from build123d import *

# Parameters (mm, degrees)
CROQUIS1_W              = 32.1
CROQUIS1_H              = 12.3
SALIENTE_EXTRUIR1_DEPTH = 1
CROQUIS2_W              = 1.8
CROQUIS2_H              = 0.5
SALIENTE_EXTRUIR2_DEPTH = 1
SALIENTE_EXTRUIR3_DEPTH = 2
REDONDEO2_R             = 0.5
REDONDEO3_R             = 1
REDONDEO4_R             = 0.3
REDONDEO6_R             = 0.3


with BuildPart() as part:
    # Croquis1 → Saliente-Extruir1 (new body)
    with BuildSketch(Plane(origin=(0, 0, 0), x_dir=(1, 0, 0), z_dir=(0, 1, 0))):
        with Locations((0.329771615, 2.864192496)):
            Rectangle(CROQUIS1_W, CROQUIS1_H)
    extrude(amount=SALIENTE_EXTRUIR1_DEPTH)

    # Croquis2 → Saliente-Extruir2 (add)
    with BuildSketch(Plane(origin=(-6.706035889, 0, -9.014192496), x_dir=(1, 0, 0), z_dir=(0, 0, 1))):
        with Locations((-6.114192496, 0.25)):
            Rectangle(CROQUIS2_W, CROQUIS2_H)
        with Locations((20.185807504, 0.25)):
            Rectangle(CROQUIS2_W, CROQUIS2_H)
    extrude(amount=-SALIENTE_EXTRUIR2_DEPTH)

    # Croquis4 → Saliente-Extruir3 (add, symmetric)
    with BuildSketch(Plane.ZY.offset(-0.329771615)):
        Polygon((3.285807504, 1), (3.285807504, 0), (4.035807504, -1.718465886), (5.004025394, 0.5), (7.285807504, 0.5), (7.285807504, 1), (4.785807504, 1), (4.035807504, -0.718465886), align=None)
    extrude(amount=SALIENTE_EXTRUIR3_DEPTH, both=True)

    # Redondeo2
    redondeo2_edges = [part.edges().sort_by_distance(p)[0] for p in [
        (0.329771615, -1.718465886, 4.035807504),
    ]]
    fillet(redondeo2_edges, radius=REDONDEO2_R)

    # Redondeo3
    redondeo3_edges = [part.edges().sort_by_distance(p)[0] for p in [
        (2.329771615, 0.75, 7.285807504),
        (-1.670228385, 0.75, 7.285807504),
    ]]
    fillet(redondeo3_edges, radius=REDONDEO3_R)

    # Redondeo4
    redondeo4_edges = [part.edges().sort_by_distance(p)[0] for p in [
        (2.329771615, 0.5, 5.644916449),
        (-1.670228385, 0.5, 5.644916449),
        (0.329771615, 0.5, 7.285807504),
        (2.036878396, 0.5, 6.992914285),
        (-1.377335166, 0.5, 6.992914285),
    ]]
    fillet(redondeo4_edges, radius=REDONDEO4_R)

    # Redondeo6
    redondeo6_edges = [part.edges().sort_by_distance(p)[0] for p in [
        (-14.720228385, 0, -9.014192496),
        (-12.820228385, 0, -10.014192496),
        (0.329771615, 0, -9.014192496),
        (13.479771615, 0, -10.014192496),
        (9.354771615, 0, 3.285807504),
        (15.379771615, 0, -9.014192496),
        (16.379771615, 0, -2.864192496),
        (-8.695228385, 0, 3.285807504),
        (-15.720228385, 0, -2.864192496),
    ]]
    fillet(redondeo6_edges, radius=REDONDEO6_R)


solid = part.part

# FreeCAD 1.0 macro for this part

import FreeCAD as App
import Part
import Sketcher

V = App.Vector


def edges_at(feature, points):
    """Names of the edges that pass closest to the given points."""
    edges = feature.Shape.Edges
    near = lambda p: min(range(len(edges)), key=lambda i: edges[i].distToShape(Part.Vertex(*p))[0])
    return sorted({f"Edge{near(p) + 1}" for p in points})


def add_polygon(sketch, points):
    """Adds a closed chain of lines whose ends are joined by coincident constraints."""
    first, n = sketch.GeometryCount, len(points)
    for a, b in zip(points, points[1:] + points[:1]):
        sketch.addGeometry(Part.LineSegment(App.Vector(*a, 0), App.Vector(*b, 0)), False)
    for i in range(n):
        sketch.addConstraint(Sketcher.Constraint("Coincident", first + i, 2, first + (i + 1) % n, 1))

doc = App.newDocument("Part")
body = doc.addObject("PartDesign::Body", "Body")

sketch1 = doc.addObject("Sketcher::SketchObject", "Sketch")
body.addObject(sketch1)
sketch1.AttachmentSupport = (doc.XZ_Plane, [""])
sketch1.MapMode = "FlatFace"
add_polygon(sketch1, [(-15.720228, -9.014192), (-15.720228, 3.285808), (16.379772, 3.285808), (16.379772, -9.014192)])
sketch1.addConstraint([
    Sketcher.Constraint("Vertical", 0),
    Sketcher.Constraint("Horizontal", 1),
    Sketcher.Constraint("Vertical", 2),
    Sketcher.Constraint("Horizontal", 3),
    Sketcher.Constraint("DistanceX", 1, 1, 1, 2, 32.1),
    Sketcher.Constraint("DistanceY", 0, 1, 0, 2, 12.3),
    Sketcher.Constraint("DistanceX", 0, 2, -1, 1, 15.720228),
    Sketcher.Constraint("DistanceY", -1, 1, 0, 2, 3.285808),
])
pad1 = doc.addObject("PartDesign::Pad", "Pad")
body.addObject(pad1)
pad1.Profile = sketch1
pad1.Length = 1
pad1.Reversed = True

sketch2 = doc.addObject("Sketcher::SketchObject", "Sketch001")
body.addObject(sketch2)
sketch2.AttachmentSupport = (doc.XY_Plane, [""])
sketch2.MapMode = "FlatFace"
sketch2.AttachmentOffset = App.Placement(V(0, 0, -9.014192), App.Rotation())
add_polygon(sketch2, [(-13.720228, 0.5), (-13.720228, 0), (-11.920228, 0), (-11.920228, 0.5)])
add_polygon(sketch2, [(12.579772, 0.5), (12.579772, 0), (14.379772, 0), (14.379772, 0.5)])
sketch2.addConstraint([
    Sketcher.Constraint("Vertical", 0),
    Sketcher.Constraint("Horizontal", 1),
    Sketcher.Constraint("Vertical", 2),
    Sketcher.Constraint("Horizontal", 3),
    Sketcher.Constraint("Vertical", 4),
    Sketcher.Constraint("Horizontal", 5),
    Sketcher.Constraint("Vertical", 6),
    Sketcher.Constraint("Horizontal", 7),
    Sketcher.Constraint("PointOnObject", 0, 2, -1),
    Sketcher.Constraint("PointOnObject", 4, 2, -1),
    Sketcher.Constraint("Horizontal", 3, 2, 6, 2),
    Sketcher.Constraint("Equal", 3, 5),
    Sketcher.Constraint("DistanceX", 1, 1, 1, 2, 1.8),
    Sketcher.Constraint("DistanceY", 0, 2, 0, 1, 0.5),
    Sketcher.Constraint("DistanceX", 1, 2, 4, 2, 24.5),
    Sketcher.Constraint("DistanceX", 0, 2, -1, 1, 13.720228),
])
pad2 = doc.addObject("PartDesign::Pad", "Pad001")
body.addObject(pad2)
pad2.Profile = sketch2
pad2.Length = 1
pad2.Reversed = True

sketch3 = doc.addObject("Sketcher::SketchObject", "Sketch002")
body.addObject(sketch3)
sketch3.AttachmentSupport = (doc.YZ_Plane, [""])
sketch3.MapMode = "FlatFace"
sketch3.AttachmentOffset = App.Placement(V(0, 0, 0.329772), App.Rotation())
add_polygon(sketch3, [(1, 3.285808), (0, 3.285808), (-1.718466, 4.035808), (0.5, 5.004025), (0.5, 7.285808), (1, 7.285808), (1, 4.785808), (-0.718466, 4.035808)])
sketch3.addConstraint([
    Sketcher.Constraint("Horizontal", 0),
    Sketcher.Constraint("Vertical", 3),
    Sketcher.Constraint("Horizontal", 4),
    Sketcher.Constraint("Vertical", 5),
    Sketcher.Constraint("PointOnObject", 0, 2, -2),
    Sketcher.Constraint("Parallel", 2, 6),
    Sketcher.Constraint("Parallel", 1, 7),
    Sketcher.Constraint("Horizontal", 1, 2, 6, 2),
    Sketcher.Constraint("Vertical", 5, 2, 7, 2),
    Sketcher.Constraint("Equal", 1, 6),
    Sketcher.Constraint("DistanceX", 0, 2, 0, 1, 1.0),
    Sketcher.Constraint("DistanceX", 4, 1, 4, 2, 0.5),
    Sketcher.Constraint("DistanceY", 5, 2, 5, 1, 2.5),
    Sketcher.Constraint("DistanceY", 0, 2, 3, 2, 4.0),
    Sketcher.Constraint("Distance", 1, 1.875),
    Sketcher.Constraint("DistanceY", -1, 1, 0, 2, 3.285808),
])
pad3 = doc.addObject("PartDesign::Pad", "Pad002")
body.addObject(pad3)
pad3.Profile = sketch3
pad3.Length = 4
pad3.Midplane = True
doc.recompute()

fillet = doc.addObject("PartDesign::Fillet", "Fillet")
body.addObject(fillet)
fillet.Base = (pad3, edges_at(pad3, [(0.33, -1.718, 4.036)]))
fillet.Radius = 0.5
doc.recompute()

fillet2 = doc.addObject("PartDesign::Fillet", "Fillet001")
body.addObject(fillet2)
fillet2.Base = (fillet, edges_at(fillet, [(2.33, 0.75, 7.286), (-1.67, 0.75, 7.286)]))
fillet2.Radius = 1
doc.recompute()

fillet3 = doc.addObject("PartDesign::Fillet", "Fillet002")
body.addObject(fillet3)
fillet3.Base = (fillet2, edges_at(fillet2, [
    (2.33, 0.5, 5.645),
    (-1.67, 0.5, 5.645),
    (0.33, 0.5, 7.286),
    (2.037, 0.5, 6.993),
    (-1.377, 0.5, 6.993),
]))
fillet3.Radius = 0.3
doc.recompute()

fillet4 = doc.addObject("PartDesign::Fillet", "Fillet003")
body.addObject(fillet4)
fillet4.Base = (fillet3, edges_at(fillet3, [
    (-14.72, 0, -9.014),
    (-12.82, 0, -10.014),
    (0.33, 0, -9.014),
    (13.48, 0, -10.014),
    (9.355, 0, 3.286),
    (15.38, 0, -9.014),
    (16.38, 0, -2.864),
    (-8.695, 0, 3.286),
    (-15.72, 0, -2.864),
]))
fillet4.Radius = 0.3

doc.recompute()
